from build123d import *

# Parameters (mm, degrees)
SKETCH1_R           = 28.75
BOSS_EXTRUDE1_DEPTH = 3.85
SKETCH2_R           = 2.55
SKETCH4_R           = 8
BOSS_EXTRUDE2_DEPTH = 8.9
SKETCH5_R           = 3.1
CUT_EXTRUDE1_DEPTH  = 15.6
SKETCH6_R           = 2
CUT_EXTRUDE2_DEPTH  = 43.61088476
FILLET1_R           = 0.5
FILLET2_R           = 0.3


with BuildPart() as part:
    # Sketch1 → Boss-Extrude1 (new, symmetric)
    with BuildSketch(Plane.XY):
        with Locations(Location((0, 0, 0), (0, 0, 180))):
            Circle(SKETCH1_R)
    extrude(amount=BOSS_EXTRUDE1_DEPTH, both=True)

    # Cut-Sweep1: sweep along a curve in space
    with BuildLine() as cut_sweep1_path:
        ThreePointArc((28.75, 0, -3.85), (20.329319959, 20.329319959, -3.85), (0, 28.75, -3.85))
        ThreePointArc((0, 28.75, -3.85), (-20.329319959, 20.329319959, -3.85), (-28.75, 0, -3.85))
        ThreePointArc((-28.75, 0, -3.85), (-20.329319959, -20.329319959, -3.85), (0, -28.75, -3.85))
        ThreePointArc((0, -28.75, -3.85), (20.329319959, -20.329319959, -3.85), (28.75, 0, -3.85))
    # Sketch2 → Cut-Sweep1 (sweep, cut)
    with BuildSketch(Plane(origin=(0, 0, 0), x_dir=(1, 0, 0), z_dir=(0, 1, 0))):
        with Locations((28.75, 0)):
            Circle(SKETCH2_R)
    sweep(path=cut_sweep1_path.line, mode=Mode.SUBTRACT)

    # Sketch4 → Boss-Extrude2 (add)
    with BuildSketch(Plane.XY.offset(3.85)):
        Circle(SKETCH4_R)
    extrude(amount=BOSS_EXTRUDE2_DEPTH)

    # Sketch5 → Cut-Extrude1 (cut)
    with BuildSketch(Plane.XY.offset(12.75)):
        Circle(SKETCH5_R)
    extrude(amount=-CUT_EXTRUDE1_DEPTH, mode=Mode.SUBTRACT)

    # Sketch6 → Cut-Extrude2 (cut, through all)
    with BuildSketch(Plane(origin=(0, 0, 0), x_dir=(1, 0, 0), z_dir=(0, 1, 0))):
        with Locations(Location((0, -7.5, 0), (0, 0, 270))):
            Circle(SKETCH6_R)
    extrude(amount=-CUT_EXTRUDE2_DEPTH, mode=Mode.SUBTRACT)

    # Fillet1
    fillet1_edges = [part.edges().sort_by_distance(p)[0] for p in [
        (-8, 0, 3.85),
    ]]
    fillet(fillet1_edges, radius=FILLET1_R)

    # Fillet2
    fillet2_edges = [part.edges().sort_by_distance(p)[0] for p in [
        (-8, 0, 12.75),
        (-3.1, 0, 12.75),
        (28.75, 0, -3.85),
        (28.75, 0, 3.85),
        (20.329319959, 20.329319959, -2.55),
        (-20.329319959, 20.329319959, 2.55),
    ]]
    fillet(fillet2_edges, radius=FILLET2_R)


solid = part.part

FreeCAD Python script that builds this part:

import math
import FreeCAD as App
import Part
import Sketcher


def edges_at(feature, points):
    """Names of the edges that pass closest to the given points."""
    edges = feature.Shape.Edges
    near = lambda p: min(range(len(edges)), key=lambda i: edges[i].distToShape(Part.Vertex(*p))[0])
    return sorted({f"Edge{near(p) + 1}" for p in points})

doc = App.newDocument("Part")
params = doc.addObject("Spreadsheet::Sheet", "Params")
for row, (alias, value) in enumerate([
    ("sketch1_diameter", "57.5 mm"),
    ("pad1_length", "7.7 mm"),
    ("sketch2_diameter", "5.1 mm"),
    ("sketch3_radius", "28.75 mm"),
    ("sketch4_diameter", "16 mm"),
    ("pad2_length", "8.9 mm"),
    ("sketch5_diameter", "6.2 mm"),
    ("pocket1_length", "15.6 mm"),
    ("sketch6_diameter", "4 mm"),
    ("fillet_radius", "0.5 mm"),
    ("fillet2_radius", "0.3 mm"),
], start=1):
    params.set(f"A{row}", alias)
    params.set(f"B{row}", "=" + value)
    params.setAlias(f"B{row}", alias)

body = doc.addObject("PartDesign::Body", "Body")

# Sketch on XY plane
sketch1 = body.newObject("Sketcher::SketchObject", "Sketch")
sketch1.AttachmentSupport = (doc.getObject("XY_Plane"), [""])
sketch1.MapMode = "FlatFace"
sketch1.addGeometry(Part.Circle(App.Vector(0, 0, 0), App.Vector(0, 0, 1), 28.75), False)
sketch1.addConstraint(Sketcher.Constraint("Coincident", 0, 3, -1, 1))
sketch1.addConstraint(Sketcher.Constraint("Diameter", 0, 57.5))
sketch1.setExpression("Constraints[1]", "Params.sketch1_diameter")
pad1 = body.newObject("PartDesign::Pad", "Pad")
pad1.Profile = sketch1
pad1.setExpression("Length", "Params.pad1_length")
pad1.Midplane = True

# Sketch on XZ plane
sketch2 = body.newObject("Sketcher::SketchObject", "Sketch001")
sketch2.AttachmentSupport = (doc.getObject("XZ_Plane"), [""])
sketch2.MapMode = "FlatFace"
sketch2.addGeometry(Part.Circle(App.Vector(28.75, 0, 0), App.Vector(0, 0, 1), 2.55), False)
sketch2.addConstraint(Sketcher.Constraint("PointOnObject", 0, 3, -1))
sketch2.addConstraint(Sketcher.Constraint("Diameter", 0, 5.1))
sketch2.addConstraint(Sketcher.Constraint("DistanceX", -1, 1, 0, 3, 28.75))
sketch2.setExpression("Constraints[1]", "Params.sketch2_diameter")

# Sketch on XY plane
sketch3 = body.newObject("Sketcher::SketchObject", "Sketch002")
sketch3.AttachmentSupport = (doc.getObject("XY_Plane"), [""])
sketch3.MapMode = "FlatFace"
sketch3.AttachmentOffset = App.Placement(App.Vector(0, 0, -3.85), App.Rotation())
sketch3.addGeometry(Part.ArcOfCircle(Part.Circle(App.Vector(0, 0, 0), App.Vector(0, 0, 1), 28.75), math.radians(0), math.radians(90)), False)
sketch3.addGeometry(Part.ArcOfCircle(Part.Circle(App.Vector(0, 0, 0), App.Vector(0, 0, 1), 28.75), math.radians(90), math.radians(180)), False)
sketch3.addGeometry(Part.ArcOfCircle(Part.Circle(App.Vector(0, 0, 0), App.Vector(0, 0, 1), 28.75), math.radians(180), math.radians(270)), False)
sketch3.addGeometry(Part.ArcOfCircle(Part.Circle(App.Vector(0, 0, 0), App.Vector(0, 0, 1), 28.75), math.radians(-90), math.radians(0)), False)
sketch3.addConstraint(Sketcher.Constraint("Tangent", 0, 2, 1, 1))
sketch3.addConstraint(Sketcher.Constraint("Tangent", 1, 2, 2, 1))
sketch3.addConstraint(Sketcher.Constraint("Tangent", 2, 2, 3, 1))
sketch3.addConstraint(Sketcher.Constraint("Tangent", 3, 2, 0, 1))
sketch3.addConstraint(Sketcher.Constraint("Coincident", 0, 3, -1, 1))
sketch3.addConstraint(Sketcher.Constraint("Equal", 0, 1))
sketch3.addConstraint(Sketcher.Constraint("PointOnObject", 0, 2, -2))
sketch3.addConstraint(Sketcher.Constraint("PointOnObject", 1, 2, -1))
sketch3.addConstraint(Sketcher.Constraint("PointOnObject", 2, 2, -2))
sketch3.addConstraint(Sketcher.Constraint("PointOnObject", 3, 2, -1))
sketch3.addConstraint(Sketcher.Constraint("Radius", 0, 28.75))
sketch3.setExpression("Constraints[10]", "Params.sketch3_radius")
doc.recompute()

subtractivepipe = body.newObject("PartDesign::SubtractivePipe", "SubtractivePipe")
subtractivepipe.Profile = sketch2
subtractivepipe.Spine = (sketch3, ["Edge1", "Edge2", "Edge3", "Edge4"])

# Sketch on XY plane
sketch4 = body.newObject("Sketcher::SketchObject", "Sketch003")
sketch4.AttachmentSupport = (doc.getObject("XY_Plane"), [""])
sketch4.MapMode = "FlatFace"
sketch4.AttachmentOffset = App.Placement(App.Vector(0, 0, 3.85), App.Rotation())
sketch4.addGeometry(Part.Circle(App.Vector(0, 0, 0), App.Vector(0, 0, 1), 8), False)
sketch4.addConstraint(Sketcher.Constraint("Coincident", 0, 3, -1, 1))
sketch4.addConstraint(Sketcher.Constraint("Diameter", 0, 16.0))
sketch4.setExpression("Constraints[1]", "Params.sketch4_diameter")
pad2 = body.newObject("PartDesign::Pad", "Pad001")
pad2.Profile = sketch4
pad2.setExpression("Length", "Params.pad2_length")

# Sketch on XY plane
sketch5 = body.newObject("Sketcher::SketchObject", "Sketch004")
sketch5.AttachmentSupport = (doc.getObject("XY_Plane"), [""])
sketch5.MapMode = "FlatFace"
sketch5.AttachmentOffset = App.Placement(App.Vector(0, 0, 12.75), App.Rotation())
sketch5.addGeometry(Part.Circle(App.Vector(0, 0, 0), App.Vector(0, 0, 1), 3.1), False)
sketch5.addConstraint(Sketcher.Constraint("Coincident", 0, 3, -1, 1))
sketch5.addConstraint(Sketcher.Constraint("Diameter", 0, 6.2))
sketch5.setExpression("Constraints[1]", "Params.sketch5_diameter")
pocket1 = body.newObject("PartDesign::Pocket", "Pocket")
pocket1.Profile = sketch5
pocket1.setExpression("Length", "Params.pocket1_length")

# Sketch on XZ plane
sketch6 = body.newObject("Sketcher::SketchObject", "Sketch005")
sketch6.AttachmentSupport = (doc.getObject("XZ_Plane"), [""])
sketch6.MapMode = "FlatFace"
sketch6.addGeometry(Part.Circle(App.Vector(0, 7.5, 0), App.Vector(0, 0, 1), 2), False)
sketch6.addConstraint(Sketcher.Constraint("PointOnObject", 0, 3, -2))
sketch6.addConstraint(Sketcher.Constraint("Diameter", 0, 4.0))
sketch6.addConstraint(Sketcher.Constraint("DistanceY", -1, 1, 0, 3, 7.5))
sketch6.setExpression("Constraints[1]", "Params.sketch6_diameter")
pocket2 = body.newObject("PartDesign::Pocket", "Pocket001")
pocket2.Profile = sketch6
pocket2.Type = "ThroughAll"
pocket2.Reversed = True
doc.recompute()

fillet = body.newObject("PartDesign::Fillet", "Fillet")
fillet.Base = (pocket2, edges_at(pocket2, [(-8, 0, 3.85)]))
fillet.setExpression("Radius", "Params.fillet_radius")
doc.recompute()

fillet2 = body.newObject("PartDesign::Fillet", "Fillet001")
fillet2.Base = (fillet, edges_at(fillet, [
    (-8, 0, 12.75),
    (-3.1, 0, 12.75),
    (28.75, 0, -3.85),
    (28.75, 0, 3.85),
    (20.329, 20.329, -2.55),
    (-20.329, 20.329, 2.55),
]))
fillet2.setExpression("Radius", "Params.fillet2_radius")

doc.recompute()
